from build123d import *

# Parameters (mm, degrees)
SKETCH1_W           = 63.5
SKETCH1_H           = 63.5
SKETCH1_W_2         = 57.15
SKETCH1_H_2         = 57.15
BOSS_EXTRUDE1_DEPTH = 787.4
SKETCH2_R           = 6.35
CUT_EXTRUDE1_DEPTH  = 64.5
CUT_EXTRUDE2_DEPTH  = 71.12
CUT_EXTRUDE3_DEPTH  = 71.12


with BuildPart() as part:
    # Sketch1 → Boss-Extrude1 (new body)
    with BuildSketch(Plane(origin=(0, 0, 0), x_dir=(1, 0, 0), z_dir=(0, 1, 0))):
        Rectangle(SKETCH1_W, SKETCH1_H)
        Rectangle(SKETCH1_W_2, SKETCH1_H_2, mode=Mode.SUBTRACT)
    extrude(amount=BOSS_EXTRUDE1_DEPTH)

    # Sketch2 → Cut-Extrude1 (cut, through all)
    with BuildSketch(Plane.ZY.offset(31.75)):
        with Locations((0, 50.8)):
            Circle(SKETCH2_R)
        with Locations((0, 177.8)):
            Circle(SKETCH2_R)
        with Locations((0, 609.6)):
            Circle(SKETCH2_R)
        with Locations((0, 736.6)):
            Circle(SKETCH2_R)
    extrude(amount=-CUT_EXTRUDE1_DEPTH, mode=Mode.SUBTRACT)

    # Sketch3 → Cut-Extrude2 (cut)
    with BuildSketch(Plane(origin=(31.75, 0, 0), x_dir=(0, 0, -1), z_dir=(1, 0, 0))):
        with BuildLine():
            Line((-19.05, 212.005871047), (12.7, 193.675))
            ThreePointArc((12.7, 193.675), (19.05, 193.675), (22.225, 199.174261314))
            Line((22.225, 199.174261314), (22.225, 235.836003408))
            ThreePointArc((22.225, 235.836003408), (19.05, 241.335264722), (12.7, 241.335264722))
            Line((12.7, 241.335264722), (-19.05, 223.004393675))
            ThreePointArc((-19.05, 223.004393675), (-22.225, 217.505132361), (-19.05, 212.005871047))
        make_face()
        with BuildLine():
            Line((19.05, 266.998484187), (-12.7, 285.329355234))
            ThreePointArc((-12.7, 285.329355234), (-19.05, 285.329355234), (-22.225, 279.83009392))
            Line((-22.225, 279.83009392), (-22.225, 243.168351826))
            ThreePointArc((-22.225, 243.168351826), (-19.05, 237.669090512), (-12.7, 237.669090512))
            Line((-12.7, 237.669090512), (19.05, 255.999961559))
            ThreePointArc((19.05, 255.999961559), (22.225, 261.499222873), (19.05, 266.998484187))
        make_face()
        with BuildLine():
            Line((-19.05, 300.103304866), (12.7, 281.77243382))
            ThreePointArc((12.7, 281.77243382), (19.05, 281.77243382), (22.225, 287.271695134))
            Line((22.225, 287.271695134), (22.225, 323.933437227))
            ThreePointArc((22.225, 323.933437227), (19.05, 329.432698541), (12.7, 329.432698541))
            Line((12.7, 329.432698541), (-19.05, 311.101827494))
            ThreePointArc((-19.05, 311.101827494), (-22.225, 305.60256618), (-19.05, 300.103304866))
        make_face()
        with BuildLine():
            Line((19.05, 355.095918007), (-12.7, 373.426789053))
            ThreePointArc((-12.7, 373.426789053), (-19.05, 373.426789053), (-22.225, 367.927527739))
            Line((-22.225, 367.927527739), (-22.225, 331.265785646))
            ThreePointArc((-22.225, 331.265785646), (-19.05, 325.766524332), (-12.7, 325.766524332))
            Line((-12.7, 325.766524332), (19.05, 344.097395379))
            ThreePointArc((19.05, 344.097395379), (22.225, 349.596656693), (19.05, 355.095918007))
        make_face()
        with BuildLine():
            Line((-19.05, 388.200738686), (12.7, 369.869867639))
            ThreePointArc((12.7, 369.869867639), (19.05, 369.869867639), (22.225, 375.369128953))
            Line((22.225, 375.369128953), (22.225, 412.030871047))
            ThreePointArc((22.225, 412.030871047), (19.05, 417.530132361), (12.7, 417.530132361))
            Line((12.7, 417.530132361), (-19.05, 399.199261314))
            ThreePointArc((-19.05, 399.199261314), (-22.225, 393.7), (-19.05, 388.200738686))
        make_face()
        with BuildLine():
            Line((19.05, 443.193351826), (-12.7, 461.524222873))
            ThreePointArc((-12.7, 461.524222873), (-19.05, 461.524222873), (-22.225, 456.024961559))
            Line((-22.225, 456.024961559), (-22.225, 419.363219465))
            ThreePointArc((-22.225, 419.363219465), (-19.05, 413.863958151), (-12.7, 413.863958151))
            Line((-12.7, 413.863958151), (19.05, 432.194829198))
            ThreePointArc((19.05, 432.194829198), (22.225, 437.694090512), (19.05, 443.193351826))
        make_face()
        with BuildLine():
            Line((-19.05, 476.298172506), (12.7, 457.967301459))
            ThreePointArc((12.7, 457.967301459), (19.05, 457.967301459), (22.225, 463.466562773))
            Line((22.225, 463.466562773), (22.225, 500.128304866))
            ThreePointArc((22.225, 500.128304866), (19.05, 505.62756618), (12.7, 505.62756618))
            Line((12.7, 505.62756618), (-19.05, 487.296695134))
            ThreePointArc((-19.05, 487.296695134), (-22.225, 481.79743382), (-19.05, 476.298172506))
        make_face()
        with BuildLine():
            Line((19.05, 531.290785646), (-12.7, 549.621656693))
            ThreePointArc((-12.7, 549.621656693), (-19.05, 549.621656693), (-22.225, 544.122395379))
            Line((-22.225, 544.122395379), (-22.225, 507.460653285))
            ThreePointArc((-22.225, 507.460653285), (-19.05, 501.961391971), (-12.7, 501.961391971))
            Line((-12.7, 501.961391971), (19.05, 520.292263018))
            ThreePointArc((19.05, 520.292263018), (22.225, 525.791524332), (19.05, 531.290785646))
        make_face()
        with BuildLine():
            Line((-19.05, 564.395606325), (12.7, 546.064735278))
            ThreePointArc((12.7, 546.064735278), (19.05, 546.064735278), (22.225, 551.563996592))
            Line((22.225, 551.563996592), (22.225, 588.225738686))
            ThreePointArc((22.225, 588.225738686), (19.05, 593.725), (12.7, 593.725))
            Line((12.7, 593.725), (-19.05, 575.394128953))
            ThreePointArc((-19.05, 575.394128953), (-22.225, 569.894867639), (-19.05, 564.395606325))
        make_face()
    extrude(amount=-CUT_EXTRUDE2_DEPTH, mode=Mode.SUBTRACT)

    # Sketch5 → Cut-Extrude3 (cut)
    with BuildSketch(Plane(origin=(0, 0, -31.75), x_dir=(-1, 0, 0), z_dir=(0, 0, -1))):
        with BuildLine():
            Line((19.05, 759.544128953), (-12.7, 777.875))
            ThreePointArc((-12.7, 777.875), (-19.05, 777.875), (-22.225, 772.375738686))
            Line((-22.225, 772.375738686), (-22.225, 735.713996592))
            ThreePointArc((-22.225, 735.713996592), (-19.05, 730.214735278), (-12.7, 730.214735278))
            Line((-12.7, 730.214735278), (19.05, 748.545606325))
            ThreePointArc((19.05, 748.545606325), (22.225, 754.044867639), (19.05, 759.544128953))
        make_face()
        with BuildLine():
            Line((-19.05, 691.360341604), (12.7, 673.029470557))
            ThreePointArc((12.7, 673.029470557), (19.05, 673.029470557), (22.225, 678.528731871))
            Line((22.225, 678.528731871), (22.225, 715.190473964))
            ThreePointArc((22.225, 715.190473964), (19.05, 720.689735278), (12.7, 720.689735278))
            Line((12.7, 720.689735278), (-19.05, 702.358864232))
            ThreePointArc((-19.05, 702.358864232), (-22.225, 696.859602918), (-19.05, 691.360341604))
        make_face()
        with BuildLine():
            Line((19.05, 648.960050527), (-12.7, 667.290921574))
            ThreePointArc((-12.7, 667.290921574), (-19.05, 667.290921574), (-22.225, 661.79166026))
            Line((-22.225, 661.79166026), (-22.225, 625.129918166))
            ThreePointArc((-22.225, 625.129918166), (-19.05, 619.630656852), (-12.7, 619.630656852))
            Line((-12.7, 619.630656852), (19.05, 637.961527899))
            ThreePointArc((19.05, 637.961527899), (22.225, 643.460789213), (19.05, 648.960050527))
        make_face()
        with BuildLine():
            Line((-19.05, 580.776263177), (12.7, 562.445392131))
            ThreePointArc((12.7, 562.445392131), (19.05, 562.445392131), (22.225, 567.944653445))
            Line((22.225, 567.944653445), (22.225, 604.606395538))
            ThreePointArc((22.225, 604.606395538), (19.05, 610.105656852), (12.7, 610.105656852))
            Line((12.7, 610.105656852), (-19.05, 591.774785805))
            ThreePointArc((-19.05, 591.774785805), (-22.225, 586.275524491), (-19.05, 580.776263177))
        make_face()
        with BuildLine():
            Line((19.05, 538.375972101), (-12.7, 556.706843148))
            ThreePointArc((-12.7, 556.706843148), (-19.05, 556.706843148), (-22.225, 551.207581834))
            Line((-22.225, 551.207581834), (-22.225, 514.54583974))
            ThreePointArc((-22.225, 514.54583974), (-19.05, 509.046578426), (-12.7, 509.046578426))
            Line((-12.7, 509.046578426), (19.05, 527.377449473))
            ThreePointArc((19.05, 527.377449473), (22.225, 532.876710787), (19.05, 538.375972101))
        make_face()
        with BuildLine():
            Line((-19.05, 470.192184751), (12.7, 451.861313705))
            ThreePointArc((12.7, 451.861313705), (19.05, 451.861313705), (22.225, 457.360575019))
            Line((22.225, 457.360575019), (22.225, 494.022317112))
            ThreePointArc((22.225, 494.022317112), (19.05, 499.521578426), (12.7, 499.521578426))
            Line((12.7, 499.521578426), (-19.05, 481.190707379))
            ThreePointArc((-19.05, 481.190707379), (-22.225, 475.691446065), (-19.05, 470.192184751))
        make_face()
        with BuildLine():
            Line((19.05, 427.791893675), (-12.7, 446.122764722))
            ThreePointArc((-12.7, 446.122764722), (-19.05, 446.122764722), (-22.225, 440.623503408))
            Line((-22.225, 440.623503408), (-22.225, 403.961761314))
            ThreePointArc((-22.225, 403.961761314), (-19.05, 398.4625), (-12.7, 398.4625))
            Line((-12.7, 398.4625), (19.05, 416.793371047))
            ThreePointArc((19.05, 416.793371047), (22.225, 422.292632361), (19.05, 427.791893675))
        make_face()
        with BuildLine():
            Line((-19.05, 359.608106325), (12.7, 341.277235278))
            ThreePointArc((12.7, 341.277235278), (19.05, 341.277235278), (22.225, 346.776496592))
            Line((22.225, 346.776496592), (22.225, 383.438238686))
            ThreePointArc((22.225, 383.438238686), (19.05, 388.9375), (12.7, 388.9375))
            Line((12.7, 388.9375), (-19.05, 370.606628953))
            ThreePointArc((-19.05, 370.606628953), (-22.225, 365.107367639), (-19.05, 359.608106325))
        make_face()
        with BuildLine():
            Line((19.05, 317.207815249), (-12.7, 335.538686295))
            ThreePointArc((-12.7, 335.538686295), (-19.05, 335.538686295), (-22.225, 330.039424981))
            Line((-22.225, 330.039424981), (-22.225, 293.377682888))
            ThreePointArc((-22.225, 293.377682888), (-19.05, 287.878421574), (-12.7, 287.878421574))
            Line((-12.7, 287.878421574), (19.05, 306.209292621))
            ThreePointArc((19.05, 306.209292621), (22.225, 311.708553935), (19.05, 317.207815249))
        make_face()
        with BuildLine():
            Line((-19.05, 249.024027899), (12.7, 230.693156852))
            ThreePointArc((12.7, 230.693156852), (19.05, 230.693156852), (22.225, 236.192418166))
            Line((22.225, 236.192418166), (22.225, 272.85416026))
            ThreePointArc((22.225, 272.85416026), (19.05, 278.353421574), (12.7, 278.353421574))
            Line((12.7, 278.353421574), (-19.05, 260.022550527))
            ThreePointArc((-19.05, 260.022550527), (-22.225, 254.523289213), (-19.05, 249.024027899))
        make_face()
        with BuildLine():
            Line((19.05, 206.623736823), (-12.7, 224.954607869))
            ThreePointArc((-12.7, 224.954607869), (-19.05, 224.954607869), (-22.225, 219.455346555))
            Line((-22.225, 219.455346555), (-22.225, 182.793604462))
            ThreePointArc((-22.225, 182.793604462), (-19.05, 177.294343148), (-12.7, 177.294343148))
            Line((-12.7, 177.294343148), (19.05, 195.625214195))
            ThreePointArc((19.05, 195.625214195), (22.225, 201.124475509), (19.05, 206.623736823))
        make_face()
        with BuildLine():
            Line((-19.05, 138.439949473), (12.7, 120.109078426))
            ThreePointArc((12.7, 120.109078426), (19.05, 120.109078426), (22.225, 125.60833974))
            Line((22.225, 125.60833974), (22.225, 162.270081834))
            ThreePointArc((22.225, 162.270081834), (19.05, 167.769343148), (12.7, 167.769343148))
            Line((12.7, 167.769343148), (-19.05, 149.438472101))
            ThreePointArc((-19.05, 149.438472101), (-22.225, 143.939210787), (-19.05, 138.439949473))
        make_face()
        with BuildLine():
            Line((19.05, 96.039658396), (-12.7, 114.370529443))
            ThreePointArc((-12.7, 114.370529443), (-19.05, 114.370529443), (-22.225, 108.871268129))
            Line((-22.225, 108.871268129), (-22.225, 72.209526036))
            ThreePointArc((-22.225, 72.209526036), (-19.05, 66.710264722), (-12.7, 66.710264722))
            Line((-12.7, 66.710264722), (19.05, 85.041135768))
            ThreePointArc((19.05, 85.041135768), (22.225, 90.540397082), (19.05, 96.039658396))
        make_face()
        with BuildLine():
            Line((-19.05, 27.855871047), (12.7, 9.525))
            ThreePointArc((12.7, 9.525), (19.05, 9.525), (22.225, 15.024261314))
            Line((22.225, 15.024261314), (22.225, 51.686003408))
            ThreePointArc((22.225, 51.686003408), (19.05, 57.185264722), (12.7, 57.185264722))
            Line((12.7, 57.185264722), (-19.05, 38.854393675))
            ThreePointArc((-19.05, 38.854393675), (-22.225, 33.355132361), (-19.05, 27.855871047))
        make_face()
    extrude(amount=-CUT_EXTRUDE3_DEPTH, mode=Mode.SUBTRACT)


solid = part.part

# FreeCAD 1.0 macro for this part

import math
import FreeCAD as App
import Part
import Sketcher
from FreeCAD import Vector
Q = App.Units.Quantity


def add_polygon(sketch, points):
    """Adds a closed chain of lines whose ends are joined by coincident constraints."""
    first, n = sketch.GeometryCount, len(points)
    for a, b in zip(points, points[1:] + points[:1]):
        sketch.addGeometry(Part.LineSegment(App.Vector(*a, 0), App.Vector(*b, 0)), False)
    for i in range(n):
        sketch.addConstraint(Sketcher.Constraint("Coincident", first + i, 2, first + (i + 1) % n, 1))

doc = App.newDocument("Part")
body = doc.addObject("PartDesign::Body", "Body")

# Sketch on XZ plane
sketch1 = body.newObject("Sketcher::SketchObject", "Sketch")
sketch1.AttachmentSupport = (doc.getObject("XZ_Plane"), [""])
sketch1.MapMode = "FlatFace"
add_polygon(sketch1, [(-32, -32), (-32, 32), (32, 32), (32, -32)])  # lines 0-3
add_polygon(sketch1, [(29, 29), (-29, 29), (-29, -29), (29, -29)])  # lines 4-7
sketch1.addConstraint([
    Sketcher.Constraint("Vertical", 0),
    Sketcher.Constraint("Horizontal", 1),
    Sketcher.Constraint("Vertical", 2),
    Sketcher.Constraint("Horizontal", 3),
    Sketcher.Constraint("Horizontal", 4),
    Sketcher.Constraint("Vertical", 5),
    Sketcher.Constraint("Horizontal", 6),
    Sketcher.Constraint("Vertical", 7),
    Sketcher.Constraint("Symmetric", 0, 2, 2, 2, -1, 1),
    Sketcher.Constraint("Symmetric", 4, 2, 6, 2, -1, 1),
    Sketcher.Constraint("Equal", 3, 0),
    Sketcher.Constraint("Equal", 6, 5),
    Sketcher.Constraint("DistanceX", 1, 1, 1, 2, Q("2.5 in")),
    Sketcher.Constraint("DistanceX", 4, 2, 4, 1, Q("2.25 in")),
])
pad1 = body.newObject("PartDesign::Pad", "Pad")
pad1.Profile = sketch1
pad1.Length = Q("31 in")
pad1.Reversed = True

# Sketch on YZ plane
sketch2 = body.newObject("Sketcher::SketchObject", "Sketch001")
sketch2.AttachmentSupport = (doc.getObject("YZ_Plane"), [""])
sketch2.MapMode = "FlatFace"
sketch2.AttachmentOffset = App.Placement(Vector(0, 0, -1.25 * 25.4), App.Rotation())
sketch2.addGeometry([
    Part.Circle(Vector(51, 0, 0), Vector(0, 0, 1), 6),
    Part.Circle(Vector(178, 0, 0), Vector(0, 0, 1), 6),
    Part.Circle(Vector(610, 0, 0), Vector(0, 0, 1), 6),
    Part.Circle(Vector(737, 0, 0), Vector(0, 0, 1), 6),
], False)
sketch2.addConstraint([
    Sketcher.Constraint("Equal", 0, 1),
    Sketcher.Constraint("Equal", 1, 2),
    Sketcher.Constraint("Equal", 2, 3),
    Sketcher.Constraint("PointOnObject", 0, 3, -1),
    Sketcher.Constraint("PointOnObject", 1, 3, -1),
    Sketcher.Constraint("PointOnObject", 2, 3, -1),
    Sketcher.Constraint("PointOnObject", 3, 3, -1),
    Sketcher.Constraint("Diameter", 0, Q("0.5 in")),
    Sketcher.Constraint("DistanceX", -1, 1, 0, 3, Q("2 in")),
    Sketcher.Constraint("DistanceX", -1, 1, 1, 3, Q("7 in")),
    Sketcher.Constraint("DistanceX", -1, 1, 2, 3, Q("24 in")),
    Sketcher.Constraint("DistanceX", -1, 1, 3, 3, Q("29 in")),
])
pocket1 = body.newObject("PartDesign::Pocket", "Pocket")
pocket1.Profile = sketch2
pocket1.Type = "ThroughAll"
pocket1.Reversed = True

# Sketch on YZ plane
sketch3 = body.newObject("Sketcher::SketchObject", "Sketch002")
sketch3.AttachmentSupport = (doc.getObject("YZ_Plane"), [""])
sketch3.MapMode = "FlatFace"
sketch3.AttachmentOffset = App.Placement(Vector(0, 0, 1.25 * 25.4), App.Rotation())
sketch3.addGeometry([
    Part.LineSegment(Vector(212, 19, 0), Vector(194, -13, 0)),  # 0
    Part.ArcOfCircle(Part.Circle(Vector(199, -16, 0), Vector(0, 0, 1), 6), math.radians(150), math.radians(270)),  # 1
    Part.LineSegment(Vector(199, -22, 0), Vector(236, -22, 0)),  # 2
    Part.ArcOfCircle(Part.Circle(Vector(236, -16, 0), Vector(0, 0, 1), 6), math.radians(-90), math.radians(30)),  # 3
    Part.LineSegment(Vector(241, -13, 0), Vector(223, 19, 0)),  # 4
    Part.ArcOfCircle(Part.Circle(Vector(218, 16, 0), Vector(0, 0, 1), 6), math.radians(30), math.radians(150)),  # 5
    Part.LineSegment(Vector(267, -19, 0), Vector(285, 13, 0)),  # 6
    Part.ArcOfCircle(Part.Circle(Vector(280, 16, 0), Vector(0, 0, 1), 6), math.radians(-30), math.radians(90)),  # 7
    Part.LineSegment(Vector(280, 22, 0), Vector(243, 22, 0)),  # 8
    Part.ArcOfCircle(Part.Circle(Vector(243, 16, 0), Vector(0, 0, 1), 6), math.radians(90), math.radians(210)),  # 9
    Part.LineSegment(Vector(238, 13, 0), Vector(256, -19, 0)),  # 10
    Part.ArcOfCircle(Part.Circle(Vector(261, -16, 0), Vector(0, 0, 1), 6), math.radians(-150), math.radians(-30)),  # 11
    Part.LineSegment(Vector(300, 19, 0), Vector(282, -13, 0)),  # 12
    Part.ArcOfCircle(Part.Circle(Vector(287, -16, 0), Vector(0, 0, 1), 6), math.radians(150), math.radians(270)),  # 13
    Part.LineSegment(Vector(287, -22, 0), Vector(324, -22, 0)),  # 14
    Part.ArcOfCircle(Part.Circle(Vector(324, -16, 0), Vector(0, 0, 1), 6), math.radians(-90), math.radians(30)),  # 15
    Part.LineSegment(Vector(329, -13, 0), Vector(311, 19, 0)),  # 16
    Part.ArcOfCircle(Part.Circle(Vector(306, 16, 0), Vector(0, 0, 1), 6), math.radians(30), math.radians(150)),  # 17
    Part.LineSegment(Vector(355, -19, 0), Vector(373, 13, 0)),  # 18
    Part.ArcOfCircle(Part.Circle(Vector(368, 16, 0), Vector(0, 0, 1), 6), math.radians(-30), math.radians(90)),  # 19
    Part.LineSegment(Vector(368, 22, 0), Vector(331, 22, 0)),  # 20
    Part.ArcOfCircle(Part.Circle(Vector(331, 16, 0), Vector(0, 0, 1), 6), math.radians(90), math.radians(210)),  # 21
    Part.LineSegment(Vector(326, 13, 0), Vector(344, -19, 0)),  # 22
    Part.ArcOfCircle(Part.Circle(Vector(350, -16, 0), Vector(0, 0, 1), 6), math.radians(-150), math.radians(-30)),  # 23
    Part.LineSegment(Vector(388, 19, 0), Vector(370, -13, 0)),  # 24
    Part.ArcOfCircle(Part.Circle(Vector(375, -16, 0), Vector(0, 0, 1), 6), math.radians(150), math.radians(270)),  # 25
    Part.LineSegment(Vector(375, -22, 0), Vector(412, -22, 0)),  # 26
    Part.ArcOfCircle(Part.Circle(Vector(412, -16, 0), Vector(0, 0, 1), 6), math.radians(-90), math.radians(30)),  # 27
    Part.LineSegment(Vector(418, -13, 0), Vector(399, 19, 0)),  # 28
    Part.ArcOfCircle(Part.Circle(Vector(394, 16, 0), Vector(0, 0, 1), 6), math.radians(30), math.radians(150)),  # 29
    Part.LineSegment(Vector(443, -19, 0), Vector(462, 13, 0)),  # 30
    Part.ArcOfCircle(Part.Circle(Vector(456, 16, 0), Vector(0, 0, 1), 6), math.radians(-30), math.radians(90)),  # 31
    Part.LineSegment(Vector(456, 22, 0), Vector(419, 22, 0)),  # 32
    Part.ArcOfCircle(Part.Circle(Vector(419, 16, 0), Vector(0, 0, 1), 6), math.radians(90), math.radians(210)),  # 33
    Part.LineSegment(Vector(414, 13, 0), Vector(432, -19, 0)),  # 34
    Part.ArcOfCircle(Part.Circle(Vector(438, -16, 0), Vector(0, 0, 1), 6), math.radians(-150), math.radians(-30)),  # 35
    Part.LineSegment(Vector(476, 19, 0), Vector(458, -13, 0)),  # 36
    Part.ArcOfCircle(Part.Circle(Vector(463, -16, 0), Vector(0, 0, 1), 6), math.radians(150), math.radians(270)),  # 37
    Part.LineSegment(Vector(463, -22, 0), Vector(500, -22, 0)),  # 38
    Part.ArcOfCircle(Part.Circle(Vector(500, -16, 0), Vector(0, 0, 1), 6), math.radians(-90), math.radians(30)),  # 39
    Part.LineSegment(Vector(506, -13, 0), Vector(487, 19, 0)),  # 40
    Part.ArcOfCircle(Part.Circle(Vector(482, 16, 0), Vector(0, 0, 1), 6), math.radians(30), math.radians(150)),  # 41
    Part.LineSegment(Vector(531, -19, 0), Vector(550, 13, 0)),  # 42
    Part.ArcOfCircle(Part.Circle(Vector(544, 16, 0), Vector(0, 0, 1), 6), math.radians(-30), math.radians(90)),  # 43
    Part.LineSegment(Vector(544, 22, 0), Vector(507, 22, 0)),  # 44
    Part.ArcOfCircle(Part.Circle(Vector(507, 16, 0), Vector(0, 0, 1), 6), math.radians(90), math.radians(210)),  # 45
    Part.LineSegment(Vector(502, 13, 0), Vector(520, -19, 0)),  # 46
    Part.ArcOfCircle(Part.Circle(Vector(526, -16, 0), Vector(0, 0, 1), 6), math.radians(-150), math.radians(-30)),  # 47
    Part.LineSegment(Vector(564, 19, 0), Vector(546, -13, 0)),  # 48
    Part.ArcOfCircle(Part.Circle(Vector(552, -16, 0), Vector(0, 0, 1), 6), math.radians(150), math.radians(270)),  # 49
    Part.LineSegment(Vector(552, -22, 0), Vector(588, -22, 0)),  # 50
    Part.ArcOfCircle(Part.Circle(Vector(588, -16, 0), Vector(0, 0, 1), 6), math.radians(-90), math.radians(30)),  # 51
    Part.LineSegment(Vector(594, -13, 0), Vector(575, 19, 0)),  # 52
    Part.ArcOfCircle(Part.Circle(Vector(570, 16, 0), Vector(0, 0, 1), 6), math.radians(30), math.radians(150)),  # 53
], False)
sketch3.addConstraint([
    Sketcher.Constraint("Tangent", 0, 2, 1, 1),
    Sketcher.Constraint("Tangent", 1, 2, 2, 1),
    Sketcher.Constraint("Tangent", 2, 2, 3, 1),
    Sketcher.Constraint("Tangent", 3, 2, 4, 1),
    Sketcher.Constraint("Tangent", 4, 2, 5, 1),
    Sketcher.Constraint("Tangent", 5, 2, 0, 1),
    Sketcher.Constraint("Tangent", 6, 2, 7, 1),
    Sketcher.Constraint("Tangent", 7, 2, 8, 1),
    Sketcher.Constraint("Tangent", 8, 2, 9, 1),
    Sketcher.Constraint("Tangent", 9, 2, 10, 1),
    Sketcher.Constraint("Tangent", 10, 2, 11, 1),
    Sketcher.Constraint("Tangent", 11, 2, 6, 1),
    Sketcher.Constraint("Tangent", 12, 2, 13, 1),
    Sketcher.Constraint("Tangent", 13, 2, 14, 1),
    Sketcher.Constraint("Tangent", 14, 2, 15, 1),
    Sketcher.Constraint("Tangent", 15, 2, 16, 1),
    Sketcher.Constraint("Tangent", 16, 2, 17, 1),
    Sketcher.Constraint("Tangent", 17, 2, 12, 1),
    Sketcher.Constraint("Tangent", 18, 2, 19, 1),
    Sketcher.Constraint("Tangent", 19, 2, 20, 1),
    Sketcher.Constraint("Tangent", 20, 2, 21, 1),
    Sketcher.Constraint("Tangent", 21, 2, 22, 1),
    Sketcher.Constraint("Tangent", 22, 2, 23, 1),
    Sketcher.Constraint("Tangent", 23, 2, 18, 1),
    Sketcher.Constraint("Tangent", 24, 2, 25, 1),
    Sketcher.Constraint("Tangent", 25, 2, 26, 1),
    Sketcher.Constraint("Tangent", 26, 2, 27, 1),
    Sketcher.Constraint("Tangent", 27, 2, 28, 1),
    Sketcher.Constraint("Tangent", 28, 2, 29, 1),
    Sketcher.Constraint("Tangent", 29, 2, 24, 1),
    Sketcher.Constraint("Tangent", 30, 2, 31, 1),
    Sketcher.Constraint("Tangent", 31, 2, 32, 1),
    Sketcher.Constraint("Tangent", 32, 2, 33, 1),
    Sketcher.Constraint("Tangent", 33, 2, 34, 1),
    Sketcher.Constraint("Tangent", 34, 2, 35, 1),
    Sketcher.Constraint("Tangent", 35, 2, 30, 1),
    Sketcher.Constraint("Tangent", 36, 2, 37, 1),
    Sketcher.Constraint("Tangent", 37, 2, 38, 1),
    Sketcher.Constraint("Tangent", 38, 2, 39, 1),
    Sketcher.Constraint("Tangent", 39, 2, 40, 1),
    Sketcher.Constraint("Tangent", 40, 2, 41, 1),
    Sketcher.Constraint("Tangent", 41, 2, 36, 1),
    Sketcher.Constraint("Tangent", 42, 2, 43, 1),
    Sketcher.Constraint("Tangent", 43, 2, 44, 1),
    Sketcher.Constraint("Tangent", 44, 2, 45, 1),
    Sketcher.Constraint("Tangent", 45, 2, 46, 1),
    Sketcher.Constraint("Tangent", 46, 2, 47, 1),
    Sketcher.Constraint("Tangent", 47, 2, 42, 1),
    Sketcher.Constraint("Tangent", 48, 2, 49, 1),
    Sketcher.Constraint("Tangent", 49, 2, 50, 1),
    Sketcher.Constraint("Tangent", 50, 2, 51, 1),
    Sketcher.Constraint("Tangent", 51, 2, 52, 1),
    Sketcher.Constraint("Tangent", 52, 2, 53, 1),
    Sketcher.Constraint("Tangent", 53, 2, 48, 1),
    Sketcher.Constraint("Horizontal", 2),
    Sketcher.Constraint("Horizontal", 8),
    Sketcher.Constraint("Horizontal", 14),
    Sketcher.Constraint("Horizontal", 20),
    Sketcher.Constraint("Horizontal", 26),
    Sketcher.Constraint("Horizontal", 32),
    Sketcher.Constraint("Horizontal", 38),
    Sketcher.Constraint("Horizontal", 44),
    Sketcher.Constraint("Horizontal", 50),
    Sketcher.Constraint("Equal", 1, 3),
    Sketcher.Constraint("Equal", 3, 5),
    Sketcher.Constraint("Equal", 5, 7),
    Sketcher.Constraint("Equal", 7, 9),
    Sketcher.Constraint("Equal", 9, 11),
    Sketcher.Constraint("Equal", 11, 13),
    Sketcher.Constraint("Equal", 13, 15),
    Sketcher.Constraint("Equal", 15, 17),
    Sketcher.Constraint("Equal", 17, 19),
    Sketcher.Constraint("Equal", 19, 21),
    Sketcher.Constraint("Equal", 21, 23),
    Sketcher.Constraint("Equal", 23, 25),
    Sketcher.Constraint("Equal", 25, 27),
    Sketcher.Constraint("Equal", 27, 29),
    Sketcher.Constraint("Equal", 29, 31),
    Sketcher.Constraint("Equal", 31, 33),
    Sketcher.Constraint("Equal", 33, 35),
    Sketcher.Constraint("Equal", 35, 37),
    Sketcher.Constraint("Equal", 37, 39),
    Sketcher.Constraint("Equal", 39, 41),
    Sketcher.Constraint("Equal", 41, 43),
    Sketcher.Constraint("Equal", 43, 45),
    Sketcher.Constraint("Equal", 45, 47),
    Sketcher.Constraint("Equal", 47, 49),
    Sketcher.Constraint("Equal", 49, 51),
    Sketcher.Constraint("Equal", 51, 53),
    Sketcher.Constraint("Parallel", 0, 6),
    Sketcher.Constraint("Parallel", 4, 10),
    Sketcher.Constraint("Parallel", 6, 12),
    Sketcher.Constraint("Parallel", 10, 16),
    Sketcher.Constraint("Parallel", 12, 18),
    Sketcher.Constraint("Parallel", 16, 22),
    Sketcher.Constraint("Parallel", 18, 24),
    Sketcher.Constraint("Parallel", 22, 28),
    Sketcher.Constraint("Parallel", 24, 30),
    Sketcher.Constraint("Parallel", 28, 34),
    Sketcher.Constraint("Parallel", 30, 36),
    Sketcher.Constraint("Parallel", 34, 40),
    Sketcher.Constraint("Parallel", 36, 42),
    Sketcher.Constraint("Parallel", 40, 46),
    Sketcher.Constraint("Parallel", 42, 48),
    Sketcher.Constraint("Parallel", 46, 52),
    Sketcher.Constraint("Horizontal", 5, 3, 7, 3),
    Sketcher.Constraint("Horizontal", 3, 3, 11, 3),
    Sketcher.Constraint("Horizontal", 11, 3, 13, 3),
    Sketcher.Constraint("Horizontal", 9, 3, 17, 3),
    Sketcher.Constraint("Horizontal", 17, 3, 19, 3),
    Sketcher.Constraint("Horizontal", 15, 3, 23, 3),
    Sketcher.Constraint("Horizontal", 23, 3, 25, 3),
    Sketcher.Constraint("Horizontal", 21, 3, 29, 3),
    Sketcher.Constraint("Horizontal", 29, 3, 31, 3),
    Sketcher.Constraint("Horizontal", 27, 3, 35, 3),
    Sketcher.Constraint("Horizontal", 35, 3, 37, 3),
    Sketcher.Constraint("Horizontal", 33, 3, 41, 3),
    Sketcher.Constraint("Horizontal", 41, 3, 43, 3),
    Sketcher.Constraint("Horizontal", 39, 3, 47, 3),
    Sketcher.Constraint("Horizontal", 47, 3, 49, 3),
    Sketcher.Constraint("Horizontal", 45, 3, 53, 3),
    Sketcher.Constraint("Horizontal", 0, 2, 3, 2),
    Sketcher.Constraint("Radius", 1, Q("0.25 in")),
    Sketcher.Constraint("Angle", 0, Q("-120 deg")),
    Sketcher.Constraint("DistanceX", -1, 1, 29, 3, Q("15.5 in")),
    Sketcher.Constraint("DistanceY", 0, 2, -1, 1, Q("0.5 in")),
    Sketcher.Constraint("DistanceY", -1, 1, 6, 2, Q("0.5 in")),
    Sketcher.Constraint("DistanceX", -1, 1, 0, 2, Q("7.625 in")),
    Sketcher.Constraint("DistanceX", -1, 1, 51, 2, Q("23.375 in")),
    Sketcher.Constraint("DistanceX", -1, 1, 15, 2, Q("329.432699 mm")),
    Sketcher.Constraint("DistanceX", -1, 1, 36, 2, Q("457.967301 mm")),
    Sketcher.Constraint("DistanceX", -1, 1, 9, 3, Q("243.168352 mm")),
    Sketcher.Constraint("DistanceX", -1, 1, 31, 3, Q("456.024962 mm")),
    Sketcher.Constraint("DistanceX", -1, 1, 18, 2, Q("373.426789 mm")),
    Sketcher.Constraint("DistanceX", -1, 1, 45, 2, Q("501.961392 mm")),
])
pocket2 = body.newObject("PartDesign::Pocket", "Pocket001")
pocket2.Profile = sketch3
pocket2.Length = Q("2.8 in")

# Sketch on XY plane
sketch4 = body.newObject("Sketcher::SketchObject", "Sketch003")
sketch4.AttachmentSupport = (doc.getObject("XY_Plane"), [""])
sketch4.MapMode = "FlatFace"
sketch4.AttachmentOffset = App.Placement(Vector(0, 0, -1.25 * 25.4), App.Rotation())
sketch4.addGeometry([
    Part.LineSegment(Vector(-19, 760, 0), Vector(13, 778, 0)),  # 0
    Part.ArcOfCircle(Part.Circle(Vector(16, 772, 0), Vector(0, 0, 1), 6), math.radians(0), math.radians(120)),  # 1
    Part.LineSegment(Vector(22, 772, 0), Vector(22, 736, 0)),  # 2
    Part.ArcOfCircle(Part.Circle(Vector(16, 736, 0), Vector(0, 0, 1), 6), math.radians(-120), math.radians(0)),  # 3
    Part.LineSegment(Vector(13, 730, 0), Vector(-19, 749, 0)),  # 4
    Part.ArcOfCircle(Part.Circle(Vector(-16, 754, 0), Vector(0, 0, 1), 6), math.radians(120), math.radians(240)),  # 5
    Part.LineSegment(Vector(19, 691, 0), Vector(-13, 673, 0)),  # 6
    Part.ArcOfCircle(Part.Circle(Vector(-16, 679, 0), Vector(0, 0, 1), 6), math.radians(180), math.radians(300)),  # 7
    Part.LineSegment(Vector(-22, 679, 0), Vector(-22, 715, 0)),  # 8
    Part.ArcOfCircle(Part.Circle(Vector(-16, 715, 0), Vector(0, 0, 1), 6), math.radians(60), math.radians(180)),  # 9
    Part.LineSegment(Vector(-13, 721, 0), Vector(19, 702, 0)),  # 10
    Part.ArcOfCircle(Part.Circle(Vector(16, 697, 0), Vector(0, 0, 1), 6), math.radians(-60), math.radians(60)),  # 11
    Part.LineSegment(Vector(-19, 649, 0), Vector(13, 667, 0)),  # 12
    Part.ArcOfCircle(Part.Circle(Vector(16, 662, 0), Vector(0, 0, 1), 6), math.radians(0), math.radians(120)),  # 13
    Part.LineSegment(Vector(22, 662, 0), Vector(22, 625, 0)),  # 14
    Part.ArcOfCircle(Part.Circle(Vector(16, 625, 0), Vector(0, 0, 1), 6), math.radians(-120), math.radians(0)),  # 15
    Part.LineSegment(Vector(13, 620, 0), Vector(-19, 638, 0)),  # 16
    Part.ArcOfCircle(Part.Circle(Vector(-16, 643, 0), Vector(0, 0, 1), 6), math.radians(120), math.radians(240)),  # 17
    Part.LineSegment(Vector(19, 581, 0), Vector(-13, 562, 0)),  # 18
    Part.ArcOfCircle(Part.Circle(Vector(-16, 568, 0), Vector(0, 0, 1), 6), math.radians(180), math.radians(300)),  # 19
    Part.LineSegment(Vector(-22, 568, 0), Vector(-22, 605, 0)),  # 20
    Part.ArcOfCircle(Part.Circle(Vector(-16, 605, 0), Vector(0, 0, 1), 6), math.radians(60), math.radians(180)),  # 21
    Part.LineSegment(Vector(-13, 610, 0), Vector(19, 592, 0)),  # 22
    Part.ArcOfCircle(Part.Circle(Vector(16, 586, 0), Vector(0, 0, 1), 6), math.radians(-60), math.radians(60)),  # 23
    Part.LineSegment(Vector(-19, 538, 0), Vector(13, 557, 0)),  # 24
    Part.ArcOfCircle(Part.Circle(Vector(16, 551, 0), Vector(0, 0, 1), 6), math.radians(0), math.radians(120)),  # 25
    Part.LineSegment(Vector(22, 551, 0), Vector(22, 515, 0)),  # 26
    Part.ArcOfCircle(Part.Circle(Vector(16, 515, 0), Vector(0, 0, 1), 6), math.radians(-120), math.radians(0)),  # 27
    Part.LineSegment(Vector(13, 509, 0), Vector(-19, 527, 0)),  # 28
    Part.ArcOfCircle(Part.Circle(Vector(-16, 533, 0), Vector(0, 0, 1), 6), math.radians(120), math.radians(240)),  # 29
    Part.LineSegment(Vector(19, 470, 0), Vector(-13, 452, 0)),  # 30
    Part.ArcOfCircle(Part.Circle(Vector(-16, 457, 0), Vector(0, 0, 1), 6), math.radians(180), math.radians(300)),  # 31
    Part.LineSegment(Vector(-22, 457, 0), Vector(-22, 494, 0)),  # 32
    Part.ArcOfCircle(Part.Circle(Vector(-16, 494, 0), Vector(0, 0, 1), 6), math.radians(60), math.radians(180)),  # 33
    Part.LineSegment(Vector(-13, 500, 0), Vector(19, 481, 0)),  # 34
    Part.ArcOfCircle(Part.Circle(Vector(16, 476, 0), Vector(0, 0, 1), 6), math.radians(-60), math.radians(60)),  # 35
    Part.LineSegment(Vector(-19, 428, 0), Vector(13, 446, 0)),  # 36
    Part.ArcOfCircle(Part.Circle(Vector(16, 441, 0), Vector(0, 0, 1), 6), math.radians(0), math.radians(120)),  # 37
    Part.LineSegment(Vector(22, 441, 0), Vector(22, 404, 0)),  # 38
    Part.ArcOfCircle(Part.Circle(Vector(16, 404, 0), Vector(0, 0, 1), 6), math.radians(-120), math.radians(0)),  # 39
    Part.LineSegment(Vector(13, 398, 0), Vector(-19, 417, 0)),  # 40
    Part.ArcOfCircle(Part.Circle(Vector(-16, 422, 0), Vector(0, 0, 1), 6), math.radians(120), math.radians(240)),  # 41
    Part.LineSegment(Vector(19, 360, 0), Vector(-13, 341, 0)),  # 42
    Part.ArcOfCircle(Part.Circle(Vector(-16, 347, 0), Vector(0, 0, 1), 6), math.radians(180), math.radians(300)),  # 43
    Part.LineSegment(Vector(-22, 347, 0), Vector(-22, 383, 0)),  # 44
    Part.ArcOfCircle(Part.Circle(Vector(-16, 383, 0), Vector(0, 0, 1), 6), math.radians(60), math.radians(180)),  # 45
    Part.LineSegment(Vector(-13, 389, 0), Vector(19, 371, 0)),  # 46
    Part.ArcOfCircle(Part.Circle(Vector(16, 365, 0), Vector(0, 0, 1), 6), math.radians(-60), math.radians(60)),  # 47
    Part.LineSegment(Vector(-19, 317, 0), Vector(13, 336, 0)),  # 48
    Part.ArcOfCircle(Part.Circle(Vector(16, 330, 0), Vector(0, 0, 1), 6), math.radians(0), math.radians(120)),  # 49
    Part.LineSegment(Vector(22, 330, 0), Vector(22, 293, 0)),  # 50
    Part.ArcOfCircle(Part.Circle(Vector(16, 293, 0), Vector(0, 0, 1), 6), math.radians(-120), math.radians(0)),  # 51
    Part.LineSegment(Vector(13, 288, 0), Vector(-19, 306, 0)),  # 52
    Part.ArcOfCircle(Part.Circle(Vector(-16, 312, 0), Vector(0, 0, 1), 6), math.radians(120), math.radians(240)),  # 53
    Part.LineSegment(Vector(19, 249, 0), Vector(-13, 231, 0)),  # 54
    Part.ArcOfCircle(Part.Circle(Vector(-16, 236, 0), Vector(0, 0, 1), 6), math.radians(180), math.radians(300)),  # 55
    Part.LineSegment(Vector(-22, 236, 0), Vector(-22, 273, 0)),  # 56
    Part.ArcOfCircle(Part.Circle(Vector(-16, 273, 0), Vector(0, 0, 1), 6), math.radians(60), math.radians(180)),  # 57
    Part.LineSegment(Vector(-13, 278, 0), Vector(19, 260, 0)),  # 58
    Part.ArcOfCircle(Part.Circle(Vector(16, 255, 0), Vector(0, 0, 1), 6), math.radians(-60), math.radians(60)),  # 59
    Part.LineSegment(Vector(-19, 207, 0), Vector(13, 225, 0)),  # 60
    Part.ArcOfCircle(Part.Circle(Vector(16, 219, 0), Vector(0, 0, 1), 6), math.radians(0), math.radians(120)),  # 61
    Part.LineSegment(Vector(22, 219, 0), Vector(22, 183, 0)),  # 62
    Part.ArcOfCircle(Part.Circle(Vector(16, 183, 0), Vector(0, 0, 1), 6), math.radians(-120), math.radians(0)),  # 63
    Part.LineSegment(Vector(13, 177, 0), Vector(-19, 196, 0)),  # 64
    Part.ArcOfCircle(Part.Circle(Vector(-16, 201, 0), Vector(0, 0, 1), 6), math.radians(120), math.radians(240)),  # 65
    Part.LineSegment(Vector(19, 138, 0), Vector(-13, 120, 0)),  # 66
    Part.ArcOfCircle(Part.Circle(Vector(-16, 126, 0), Vector(0, 0, 1), 6), math.radians(180), math.radians(300)),  # 67
    Part.LineSegment(Vector(-22, 126, 0), Vector(-22, 162, 0)),  # 68
    Part.ArcOfCircle(Part.Circle(Vector(-16, 162, 0), Vector(0, 0, 1), 6), math.radians(60), math.radians(180)),  # 69
    Part.LineSegment(Vector(-13, 168, 0), Vector(19, 149, 0)),  # 70
    Part.ArcOfCircle(Part.Circle(Vector(16, 144, 0), Vector(0, 0, 1), 6), math.radians(-60), math.radians(60)),  # 71
    Part.LineSegment(Vector(-19, 96, 0), Vector(13, 114, 0)),  # 72
    Part.ArcOfCircle(Part.Circle(Vector(16, 109, 0), Vector(0, 0, 1), 6), math.radians(0), math.radians(120)),  # 73
    Part.LineSegment(Vector(22, 109, 0), Vector(22, 72, 0)),  # 74
    Part.ArcOfCircle(Part.Circle(Vector(16, 72, 0), Vector(0, 0, 1), 6), math.radians(-120), math.radians(0)),  # 75
    Part.LineSegment(Vector(13, 67, 0), Vector(-19, 85, 0)),  # 76
    Part.ArcOfCircle(Part.Circle(Vector(-16, 91, 0), Vector(0, 0, 1), 6), math.radians(120), math.radians(240)),  # 77
    Part.LineSegment(Vector(19, 28, 0), Vector(-13, 10, 0)),  # 78
    Part.ArcOfCircle(Part.Circle(Vector(-16, 15, 0), Vector(0, 0, 1), 6), math.radians(180), math.radians(300)),  # 79
    Part.LineSegment(Vector(-22, 15, 0), Vector(-22, 52, 0)),  # 80
    Part.ArcOfCircle(Part.Circle(Vector(-16, 52, 0), Vector(0, 0, 1), 6), math.radians(60), math.radians(180)),  # 81
    Part.LineSegment(Vector(-13, 57, 0), Vector(19, 39, 0)),  # 82
    Part.ArcOfCircle(Part.Circle(Vector(16, 33, 0), Vector(0, 0, 1), 6), math.radians(-60), math.radians(60)),  # 83
], False)
sketch4.addConstraint([
    Sketcher.Constraint("Tangent", 0, 2, 1, 2),
    Sketcher.Constraint("Tangent", 1, 1, 2, 1),
    Sketcher.Constraint("Tangent", 2, 2, 3, 2),
    Sketcher.Constraint("Tangent", 3, 1, 4, 1),
    Sketcher.Constraint("Tangent", 4, 2, 5, 2),
    Sketcher.Constraint("Tangent", 5, 1, 0, 1),
    Sketcher.Constraint("Tangent", 6, 2, 7, 2),
    Sketcher.Constraint("Tangent", 7, 1, 8, 1),
    Sketcher.Constraint("Tangent", 8, 2, 9, 2),
    Sketcher.Constraint("Tangent", 9, 1, 10, 1),
    Sketcher.Constraint("Tangent", 10, 2, 11, 2),
    Sketcher.Constraint("Tangent", 11, 1, 6, 1),
    Sketcher.Constraint("Tangent", 12, 2, 13, 2),
    Sketcher.Constraint("Tangent", 13, 1, 14, 1),
    Sketcher.Constraint("Tangent", 14, 2, 15, 2),
    Sketcher.Constraint("Tangent", 15, 1, 16, 1),
    Sketcher.Constraint("Tangent", 16, 2, 17, 2),
    Sketcher.Constraint("Tangent", 17, 1, 12, 1),
    Sketcher.Constraint("Tangent", 18, 2, 19, 2),
    Sketcher.Constraint("Tangent", 19, 1, 20, 1),
    Sketcher.Constraint("Tangent", 20, 2, 21, 2),
    Sketcher.Constraint("Tangent", 21, 1, 22, 1),
    Sketcher.Constraint("Tangent", 22, 2, 23, 2),
    Sketcher.Constraint("Tangent", 23, 1, 18, 1),
    Sketcher.Constraint("Tangent", 24, 2, 25, 2),
    Sketcher.Constraint("Tangent", 25, 1, 26, 1),
    Sketcher.Constraint("Tangent", 26, 2, 27, 2),
    Sketcher.Constraint("Tangent", 27, 1, 28, 1),
    Sketcher.Constraint("Tangent", 28, 2, 29, 2),
    Sketcher.Constraint("Tangent", 29, 1, 24, 1),
    Sketcher.Constraint("Tangent", 30, 2, 31, 2),
    Sketcher.Constraint("Tangent", 31, 1, 32, 1),
    Sketcher.Constraint("Tangent", 32, 2, 33, 2),
    Sketcher.Constraint("Tangent", 33, 1, 34, 1),
    Sketcher.Constraint("Tangent", 34, 2, 35, 2),
    Sketcher.Constraint("Tangent", 35, 1, 30, 1),
    Sketcher.Constraint("Tangent", 36, 2, 37, 2),
    Sketcher.Constraint("Tangent", 37, 1, 38, 1),
    Sketcher.Constraint("Tangent", 38, 2, 39, 2),
    Sketcher.Constraint("Tangent", 39, 1, 40, 1),
    Sketcher.Constraint("Tangent", 40, 2, 41, 2),
    Sketcher.Constraint("Tangent", 41, 1, 36, 1),
    Sketcher.Constraint("Tangent", 42, 2, 43, 2),
    Sketcher.Constraint("Tangent", 43, 1, 44, 1),
    Sketcher.Constraint("Tangent", 44, 2, 45, 2),
    Sketcher.Constraint("Tangent", 45, 1, 46, 1),
    Sketcher.Constraint("Tangent", 46, 2, 47, 2),
    Sketcher.Constraint("Tangent", 47, 1, 42, 1),
    Sketcher.Constraint("Tangent", 48, 2, 49, 2),
    Sketcher.Constraint("Tangent", 49, 1, 50, 1),
    Sketcher.Constraint("Tangent", 50, 2, 51, 2),
    Sketcher.Constraint("Tangent", 51, 1, 52, 1),
    Sketcher.Constraint("Tangent", 52, 2, 53, 2),
    Sketcher.Constraint("Tangent", 53, 1, 48, 1),
    Sketcher.Constraint("Tangent", 54, 2, 55, 2),
    Sketcher.Constraint("Tangent", 55, 1, 56, 1),
    Sketcher.Constraint("Tangent", 56, 2, 57, 2),
    Sketcher.Constraint("Tangent", 57, 1, 58, 1),
    Sketcher.Constraint("Tangent", 58, 2, 59, 2),
    Sketcher.Constraint("Tangent", 59, 1, 54, 1),
    Sketcher.Constraint("Tangent", 60, 2, 61, 2),
    Sketcher.Constraint("Tangent", 61, 1, 62, 1),
    Sketcher.Constraint("Tangent", 62, 2, 63, 2),
    Sketcher.Constraint("Tangent", 63, 1, 64, 1),
    Sketcher.Constraint("Tangent", 64, 2, 65, 2),
    Sketcher.Constraint("Tangent", 65, 1, 60, 1),
    Sketcher.Constraint("Tangent", 66, 2, 67, 2),
    Sketcher.Constraint("Tangent", 67, 1, 68, 1),
    Sketcher.Constraint("Tangent", 68, 2, 69, 2),
    Sketcher.Constraint("Tangent", 69, 1, 70, 1),
    Sketcher.Constraint("Tangent", 70, 2, 71, 2),
    Sketcher.Constraint("Tangent", 71, 1, 66, 1),
    Sketcher.Constraint("Tangent", 72, 2, 73, 2),
    Sketcher.Constraint("Tangent", 73, 1, 74, 1),
    Sketcher.Constraint("Tangent", 74, 2, 75, 2),
    Sketcher.Constraint("Tangent", 75, 1, 76, 1),
    Sketcher.Constraint("Tangent", 76, 2, 77, 2),
    Sketcher.Constraint("Tangent", 77, 1, 72, 1),
    Sketcher.Constraint("Tangent", 78, 2, 79, 2),
    Sketcher.Constraint("Tangent", 79, 1, 80, 1),
    Sketcher.Constraint("Tangent", 80, 2, 81, 2),
    Sketcher.Constraint("Tangent", 81, 1, 82, 1),
    Sketcher.Constraint("Tangent", 82, 2, 83, 2),
    Sketcher.Constraint("Tangent", 83, 1, 78, 1),
    Sketcher.Constraint("Vertical", 2),
    Sketcher.Constraint("Vertical", 8),
    Sketcher.Constraint("Vertical", 14),
    Sketcher.Constraint("Vertical", 20),
    Sketcher.Constraint("Vertical", 26),
    Sketcher.Constraint("Vertical", 32),
    Sketcher.Constraint("Vertical", 38),
    Sketcher.Constraint("Vertical", 44),
    Sketcher.Constraint("Vertical", 50),
    Sketcher.Constraint("Vertical", 56),
    Sketcher.Constraint("Vertical", 62),
    Sketcher.Constraint("Vertical", 68),
    Sketcher.Constraint("Vertical", 74),
    Sketcher.Constraint("Vertical", 80),
    Sketcher.Constraint("Equal", 1, 3),
    Sketcher.Constraint("Equal", 3, 5),
    Sketcher.Constraint("Equal", 5, 7),
    Sketcher.Constraint("Equal", 7, 9),
    Sketcher.Constraint("Equal", 9, 11),
    Sketcher.Constraint("Equal", 11, 13),
    Sketcher.Constraint("Equal", 13, 15),
    Sketcher.Constraint("Equal", 15, 17),
    Sketcher.Constraint("Equal", 17, 19),
    Sketcher.Constraint("Equal", 19, 21),
    Sketcher.Constraint("Equal", 21, 23),
    Sketcher.Constraint("Equal", 23, 25),
    Sketcher.Constraint("Equal", 25, 27),
    Sketcher.Constraint("Equal", 27, 29),
    Sketcher.Constraint("Equal", 29, 31),
    Sketcher.Constraint("Equal", 31, 33),
    Sketcher.Constraint("Equal", 33, 35),
    Sketcher.Constraint("Equal", 35, 37),
    Sketcher.Constraint("Equal", 37, 39),
    Sketcher.Constraint("Equal", 39, 41),
    Sketcher.Constraint("Equal", 41, 43),
    Sketcher.Constraint("Equal", 43, 45),
    Sketcher.Constraint("Equal", 45, 47),
    Sketcher.Constraint("Equal", 47, 49),
    Sketcher.Constraint("Equal", 49, 51),
    Sketcher.Constraint("Equal", 51, 53),
    Sketcher.Constraint("Equal", 53, 55),
    Sketcher.Constraint("Equal", 55, 57),
    Sketcher.Constraint("Equal", 57, 59),
    Sketcher.Constraint("Equal", 59, 61),
    Sketcher.Constraint("Equal", 61, 63),
    Sketcher.Constraint("Equal", 63, 65),
    Sketcher.Constraint("Equal", 65, 67),
    Sketcher.Constraint("Equal", 67, 69),
    Sketcher.Constraint("Equal", 69, 71),
    Sketcher.Constraint("Equal", 71, 73),
    Sketcher.Constraint("Equal", 73, 75),
    Sketcher.Constraint("Equal", 75, 77),
    Sketcher.Constraint("Equal", 77, 79),
    Sketcher.Constraint("Equal", 79, 81),
    Sketcher.Constraint("Equal", 81, 83),
    Sketcher.Constraint("Parallel", 0, 6),
    Sketcher.Constraint("Parallel", 4, 10),
    Sketcher.Constraint("Parallel", 6, 12),
    Sketcher.Constraint("Parallel", 10, 16),
    Sketcher.Constraint("Parallel", 12, 18),
    Sketcher.Constraint("Parallel", 16, 22),
    Sketcher.Constraint("Parallel", 18, 24),
    Sketcher.Constraint("Parallel", 22, 28),
    Sketcher.Constraint("Parallel", 24, 30),
    Sketcher.Constraint("Parallel", 28, 34),
    Sketcher.Constraint("Parallel", 30, 36),
    Sketcher.Constraint("Parallel", 34, 40),
    Sketcher.Constraint("Parallel", 36, 42),
    Sketcher.Constraint("Parallel", 40, 46),
    Sketcher.Constraint("Parallel", 42, 48),
    Sketcher.Constraint("Parallel", 46, 52),
    Sketcher.Constraint("Parallel", 48, 54),
    Sketcher.Constraint("Parallel", 52, 58),
    Sketcher.Constraint("Parallel", 54, 60),
    Sketcher.Constraint("Parallel", 58, 64),
    Sketcher.Constraint("Parallel", 60, 66),
    Sketcher.Constraint("Parallel", 64, 70),
    Sketcher.Constraint("Parallel", 66, 72),
    Sketcher.Constraint("Parallel", 70, 76),
    Sketcher.Constraint("Parallel", 72, 78),
    Sketcher.Constraint("Parallel", 76, 82),
    Sketcher.Constraint("Vertical", 5, 3, 7, 3),
    Sketcher.Constraint("Vertical", 3, 3, 11, 3),
    Sketcher.Constraint("Vertical", 11, 3, 13, 3),
    Sketcher.Constraint("Vertical", 9, 3, 17, 3),
    Sketcher.Constraint("Vertical", 17, 3, 19, 3),
    Sketcher.Constraint("Vertical", 15, 3, 23, 3),
    Sketcher.Constraint("Vertical", 23, 3, 25, 3),
    Sketcher.Constraint("Vertical", 21, 3, 29, 3),
    Sketcher.Constraint("Vertical", 29, 3, 31, 3),
    Sketcher.Constraint("Vertical", 27, 3, 35, 3),
    Sketcher.Constraint("Vertical", 35, 3, 37, 3),
    Sketcher.Constraint("Vertical", 33, 3, 41, 3),
    Sketcher.Constraint("Vertical", 41, 3, 43, 3),
    Sketcher.Constraint("Vertical", 39, 3, 47, 3),
    Sketcher.Constraint("Vertical", 47, 3, 49, 3),
    Sketcher.Constraint("Vertical", 45, 3, 53, 3),
    Sketcher.Constraint("Vertical", 53, 3, 55, 3),
    Sketcher.Constraint("Vertical", 51, 3, 59, 3),
    Sketcher.Constraint("Vertical", 59, 3, 61, 3),
    Sketcher.Constraint("Vertical", 57, 3, 65, 3),
    Sketcher.Constraint("Vertical", 65, 3, 67, 3),
    Sketcher.Constraint("Vertical", 63, 3, 71, 3),
    Sketcher.Constraint("Vertical", 71, 3, 73, 3),
    Sketcher.Constraint("Vertical", 69, 3, 77, 3),
    Sketcher.Constraint("Vertical", 77, 3, 79, 3),
    Sketcher.Constraint("Vertical", 75, 3, 83, 3),
    Sketcher.Constraint("Vertical", 0, 2, 3, 1),
    Sketcher.Constraint("Radius", 1, Q("0.25 in")),
    Sketcher.Constraint("Angle", 0, Q("30 deg")),
    Sketcher.Constraint("DistanceX", -1, 1, 0, 2, Q("0.5 in")),
    Sketcher.Constraint("DistanceX", 6, 2, -1, 1, Q("0.5 in")),
    Sketcher.Constraint("DistanceY", -1, 1, 0, 2, Q("30.625 in")),
    Sketcher.Constraint("DistanceY", -1, 1, 39, 1, Q("15.6875 in")),
    Sketcher.Constraint("DistanceY", -1, 1, 45, 1, Q("15.3125 in")),
    Sketcher.Constraint("DistanceY", -1, 1, 78, 2, Q("0.375 in")),
    Sketcher.Constraint("DistanceY", -1, 1, 7, 3, Q("678.528732 mm")),
    Sketcher.Constraint("DistanceY", -1, 1, 13, 3, Q("661.79166 mm")),
    Sketcher.Constraint("DistanceY", -1, 1, 25, 3, Q("551.207582 mm")),
    Sketcher.Constraint("DistanceY", -1, 1, 55, 3, Q("236.192418 mm")),
    Sketcher.Constraint("DistanceY", -1, 1, 67, 3, Q("125.60834 mm")),
    Sketcher.Constraint("DistanceY", -1, 1, 73, 3, Q("108.871268 mm")),
    Sketcher.Constraint("DistanceY", -1, 1, 33, 1, Q("499.521578 mm")),
    Sketcher.Constraint("DistanceY", -1, 1, 51, 1, Q("287.878422 mm")),
    Sketcher.Constraint("DistanceY", -1, 1, 19, 3, Q("567.944653 mm")),
    Sketcher.Constraint("DistanceY", -1, 1, 61, 3, Q("219.455347 mm")),
])
pocket3 = body.newObject("PartDesign::Pocket", "Pocket002")
pocket3.Profile = sketch4
pocket3.Length = Q("2.8 in")
pocket3.Reversed = True

doc.recompute()
